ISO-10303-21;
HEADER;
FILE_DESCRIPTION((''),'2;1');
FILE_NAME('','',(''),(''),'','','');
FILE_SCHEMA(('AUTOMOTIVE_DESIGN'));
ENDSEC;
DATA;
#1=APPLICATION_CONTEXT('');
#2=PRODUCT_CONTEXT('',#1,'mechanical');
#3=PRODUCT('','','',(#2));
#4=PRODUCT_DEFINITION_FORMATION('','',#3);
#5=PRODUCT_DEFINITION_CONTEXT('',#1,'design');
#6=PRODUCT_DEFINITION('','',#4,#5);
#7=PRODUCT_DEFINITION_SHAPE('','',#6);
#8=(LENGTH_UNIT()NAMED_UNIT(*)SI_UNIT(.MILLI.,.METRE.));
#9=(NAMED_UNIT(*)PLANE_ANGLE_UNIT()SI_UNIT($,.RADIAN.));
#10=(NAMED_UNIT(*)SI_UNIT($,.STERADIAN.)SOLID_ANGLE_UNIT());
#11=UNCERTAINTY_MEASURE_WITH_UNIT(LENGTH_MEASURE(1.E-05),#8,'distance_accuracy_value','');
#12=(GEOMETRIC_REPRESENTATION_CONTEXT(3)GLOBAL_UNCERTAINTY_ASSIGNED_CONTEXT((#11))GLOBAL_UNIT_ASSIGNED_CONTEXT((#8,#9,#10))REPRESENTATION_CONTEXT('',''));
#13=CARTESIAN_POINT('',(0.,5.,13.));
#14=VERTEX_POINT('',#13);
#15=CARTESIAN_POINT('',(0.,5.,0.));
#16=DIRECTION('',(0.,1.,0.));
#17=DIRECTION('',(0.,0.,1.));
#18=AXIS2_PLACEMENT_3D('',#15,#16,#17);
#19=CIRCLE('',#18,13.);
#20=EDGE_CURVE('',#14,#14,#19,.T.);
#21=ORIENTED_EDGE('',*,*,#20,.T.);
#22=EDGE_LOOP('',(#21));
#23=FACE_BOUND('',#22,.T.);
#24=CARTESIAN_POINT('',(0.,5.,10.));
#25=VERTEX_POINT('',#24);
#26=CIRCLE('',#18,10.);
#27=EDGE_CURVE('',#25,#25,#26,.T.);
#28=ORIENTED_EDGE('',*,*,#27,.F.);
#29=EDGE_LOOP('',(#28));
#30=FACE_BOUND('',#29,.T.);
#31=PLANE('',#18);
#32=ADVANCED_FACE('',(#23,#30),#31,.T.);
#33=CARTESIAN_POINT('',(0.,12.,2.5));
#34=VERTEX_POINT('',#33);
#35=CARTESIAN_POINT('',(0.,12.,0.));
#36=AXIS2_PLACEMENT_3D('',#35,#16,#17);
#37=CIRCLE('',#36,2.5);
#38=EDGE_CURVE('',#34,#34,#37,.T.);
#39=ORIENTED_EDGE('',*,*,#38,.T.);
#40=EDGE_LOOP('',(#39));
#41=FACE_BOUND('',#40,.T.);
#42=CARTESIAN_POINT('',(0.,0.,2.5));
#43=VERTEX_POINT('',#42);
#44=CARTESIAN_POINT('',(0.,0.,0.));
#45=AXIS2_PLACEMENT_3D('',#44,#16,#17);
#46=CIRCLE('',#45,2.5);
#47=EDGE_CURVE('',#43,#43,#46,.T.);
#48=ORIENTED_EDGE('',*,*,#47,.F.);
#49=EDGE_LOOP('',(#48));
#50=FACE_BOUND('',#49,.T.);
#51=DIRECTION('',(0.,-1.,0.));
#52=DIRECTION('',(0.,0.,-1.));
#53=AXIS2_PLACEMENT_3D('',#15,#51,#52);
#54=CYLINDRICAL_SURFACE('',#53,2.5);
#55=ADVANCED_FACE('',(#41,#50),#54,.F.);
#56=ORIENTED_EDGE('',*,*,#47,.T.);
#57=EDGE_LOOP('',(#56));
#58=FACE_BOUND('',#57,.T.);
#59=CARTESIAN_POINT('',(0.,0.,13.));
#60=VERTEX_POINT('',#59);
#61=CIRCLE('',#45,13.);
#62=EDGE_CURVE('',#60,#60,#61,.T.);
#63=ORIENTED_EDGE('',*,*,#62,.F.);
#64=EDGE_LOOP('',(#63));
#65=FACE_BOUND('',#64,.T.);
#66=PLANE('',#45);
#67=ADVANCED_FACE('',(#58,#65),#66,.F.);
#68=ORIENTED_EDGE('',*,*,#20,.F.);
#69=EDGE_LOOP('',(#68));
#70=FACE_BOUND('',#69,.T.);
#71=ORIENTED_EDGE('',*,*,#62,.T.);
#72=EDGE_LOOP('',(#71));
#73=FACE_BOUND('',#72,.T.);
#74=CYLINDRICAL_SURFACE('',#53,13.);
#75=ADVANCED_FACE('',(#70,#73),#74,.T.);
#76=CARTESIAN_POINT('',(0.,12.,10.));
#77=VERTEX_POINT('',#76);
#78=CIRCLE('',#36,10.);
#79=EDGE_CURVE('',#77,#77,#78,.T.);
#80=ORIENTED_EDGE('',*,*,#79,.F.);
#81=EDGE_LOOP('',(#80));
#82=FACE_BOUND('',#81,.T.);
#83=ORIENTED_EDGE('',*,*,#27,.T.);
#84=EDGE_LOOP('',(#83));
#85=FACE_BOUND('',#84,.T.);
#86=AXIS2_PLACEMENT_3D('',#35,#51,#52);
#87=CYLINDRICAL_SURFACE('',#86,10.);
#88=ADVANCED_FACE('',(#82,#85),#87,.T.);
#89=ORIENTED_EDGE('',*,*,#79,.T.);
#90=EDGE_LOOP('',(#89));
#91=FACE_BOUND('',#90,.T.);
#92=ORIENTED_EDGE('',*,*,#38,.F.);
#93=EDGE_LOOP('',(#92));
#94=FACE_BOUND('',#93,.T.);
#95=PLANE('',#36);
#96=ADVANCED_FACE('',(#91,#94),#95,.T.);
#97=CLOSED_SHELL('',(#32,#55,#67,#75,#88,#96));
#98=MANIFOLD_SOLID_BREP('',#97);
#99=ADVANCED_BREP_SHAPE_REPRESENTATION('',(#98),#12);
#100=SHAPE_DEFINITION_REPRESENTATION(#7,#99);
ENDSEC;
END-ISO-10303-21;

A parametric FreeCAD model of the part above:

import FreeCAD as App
import Part
import Sketcher

doc = App.newDocument("Part")
body = doc.addObject("PartDesign::Body", "Body")

sketch1 = body.newObject("Sketcher::SketchObject", "Sketch")
sketch1.AttachmentSupport = (doc.getObject("XZ_Plane"), [""])
sketch1.MapMode = "FlatFace"
sketch1.addGeometry([
    Part.Circle(App.Vector(0, 0, 0), App.Vector(0, 0, 1), 13),
    Part.Circle(App.Vector(0, 0, 0), App.Vector(0, 0, 1), 2.5),
], False)
sketch1.addConstraint([
    Sketcher.Constraint("Coincident", 0, 3, -1, 1),
    Sketcher.Constraint("Coincident", 1, 3, -1, 1),
    Sketcher.Constraint("Diameter", 0, 26.0),
    Sketcher.Constraint("Diameter", 1, 5.0),
])
pad1 = body.newObject("PartDesign::Pad", "Pad")
pad1.Profile = sketch1
pad1.Length = 5
pad1.Reversed = True

sketch2 = body.newObject("Sketcher::SketchObject", "Sketch001")
sketch2.AttachmentSupport = (doc.getObject("XZ_Plane"), [""])
sketch2.MapMode = "FlatFace"
sketch2.AttachmentOffset = App.Placement(App.Vector(0, 0, -5), App.Rotation())
sketch2.addGeometry([
    Part.Circle(App.Vector(0, 0, 0), App.Vector(0, 0, 1), 10),
    Part.Circle(App.Vector(0, 0, 0), App.Vector(0, 0, 1), 2.5),
], False)
sketch2.addConstraint([
    Sketcher.Constraint("Coincident", 0, 3, -1, 1),
    Sketcher.Constraint("Coincident", 1, 3, -1, 1),
    Sketcher.Constraint("Diameter", 0, 20.0),
    Sketcher.Constraint("Diameter", 1, 5.0),
])
pad2 = body.newObject("PartDesign::Pad", "Pad001")
pad2.Profile = sketch2
pad2.Length = 7
pad2.Reversed = True

doc.recompute()
